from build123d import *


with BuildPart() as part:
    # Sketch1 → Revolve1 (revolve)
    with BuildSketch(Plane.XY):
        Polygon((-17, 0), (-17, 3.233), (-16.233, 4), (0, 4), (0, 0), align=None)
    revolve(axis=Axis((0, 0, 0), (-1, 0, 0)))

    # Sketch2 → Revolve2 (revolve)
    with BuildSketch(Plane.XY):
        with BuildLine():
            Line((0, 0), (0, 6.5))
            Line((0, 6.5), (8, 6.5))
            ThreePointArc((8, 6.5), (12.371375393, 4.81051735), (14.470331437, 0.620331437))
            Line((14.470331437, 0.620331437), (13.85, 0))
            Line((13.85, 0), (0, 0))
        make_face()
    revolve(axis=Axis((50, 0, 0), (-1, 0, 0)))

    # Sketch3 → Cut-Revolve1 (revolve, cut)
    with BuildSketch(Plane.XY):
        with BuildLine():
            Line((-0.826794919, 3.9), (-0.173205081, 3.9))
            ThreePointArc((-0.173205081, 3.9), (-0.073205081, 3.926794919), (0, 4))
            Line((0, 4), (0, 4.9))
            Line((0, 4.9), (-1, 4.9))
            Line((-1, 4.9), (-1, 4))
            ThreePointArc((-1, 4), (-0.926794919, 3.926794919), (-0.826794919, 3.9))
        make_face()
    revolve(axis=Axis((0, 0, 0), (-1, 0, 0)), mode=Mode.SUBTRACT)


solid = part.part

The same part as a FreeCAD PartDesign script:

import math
import FreeCAD as App
import Part
import Sketcher
Q = App.Units.Quantity


def add_polygon(sketch, points):
    """Adds a closed chain of lines whose ends are joined by coincident constraints."""
    first, n = sketch.GeometryCount, len(points)
    for a, b in zip(points, points[1:] + points[:1]):
        sketch.addGeometry(Part.LineSegment(App.Vector(*a, 0), App.Vector(*b, 0)), False)
    for i in range(n):
        sketch.addConstraint(Sketcher.Constraint("Coincident", first + i, 2, first + (i + 1) % n, 1))

doc = App.newDocument("Part")
body = doc.addObject("PartDesign::Body", "Body")

sketch1 = body.newObject("Sketcher::SketchObject", "Sketch")
sketch1.AttachmentSupport = (doc.getObject("XY_Plane"), [""])
sketch1.MapMode = "FlatFace"
add_polygon(sketch1, [(-17, 3.2), (-17, 0), (0, 0), (0, 4), (-16.2, 4)])
sketch1.addConstraint([
    Sketcher.Constraint("Vertical", 0),
    Sketcher.Constraint("Horizontal", 1),
    Sketcher.Constraint("Vertical", 2),
    Sketcher.Constraint("Horizontal", 3),
    Sketcher.Constraint("Coincident", 1, 2, -1, 1),
    Sketcher.Constraint("DistanceX", 1, 1, 1, 2, Q("17 mm")),
    Sketcher.Constraint("DistanceY", 2, 1, 2, 2, Q("4 mm")),
    Sketcher.Constraint("Angle", 4, Q("-135 deg")),
    Sketcher.Constraint("DistanceX", 3, 2, 3, 1, Q("16.233 mm")),
])
revolution = body.newObject("PartDesign::Revolution", "Revolution")
revolution.Profile = sketch1
revolution.ReferenceAxis = (sketch1, ["H_Axis"])
revolution.Angle = 360

sketch2 = body.newObject("Sketcher::SketchObject", "Sketch001")
sketch2.AttachmentSupport = (doc.getObject("XY_Plane"), [""])
sketch2.MapMode = "FlatFace"
sketch2.addGeometry([
    Part.LineSegment(App.Vector(0, 6.5, 0), App.Vector(0, 0, 0)),
    Part.LineSegment(App.Vector(0, 0, 0), App.Vector(13.8, 0, 0)),
    Part.LineSegment(App.Vector(13.8, 0, 0), App.Vector(14.5, 0.6, 0)),
    Part.ArcOfCircle(Part.Circle(App.Vector(8, 0, 0), App.Vector(0, 0, 1), 6.5), math.radians(5), math.radians(90)),
    Part.LineSegment(App.Vector(8, 6.5, 0), App.Vector(0, 6.5, 0)),
], False)
sketch2.addConstraint([
    Sketcher.Constraint("Coincident", 0, 2, 1, 1),
    Sketcher.Constraint("Coincident", 1, 2, 2, 1),
    Sketcher.Constraint("Coincident", 2, 2, 3, 1),
    Sketcher.Constraint("Tangent", 3, 2, 4, 1),
    Sketcher.Constraint("Coincident", 4, 2, 0, 1),
    Sketcher.Constraint("Vertical", 0),
    Sketcher.Constraint("Horizontal", 1),
    Sketcher.Constraint("Horizontal", 4),
    Sketcher.Constraint("Coincident", 0, 2, -1, 1),
    Sketcher.Constraint("PointOnObject", 3, 3, -1),
    Sketcher.Constraint("Radius", 3, Q("6.5 mm")),
    Sketcher.Constraint("DistanceX", 4, 2, 4, 1, Q("8 mm")),
    Sketcher.Constraint("Angle", 2, Q("45 deg")),
    Sketcher.Constraint("DistanceX", 1, 1, 1, 2, Q("13.85 mm")),
])
revolution2 = body.newObject("PartDesign::Revolution", "Revolution001")
revolution2.Profile = sketch2
revolution2.ReferenceAxis = (sketch2, ["H_Axis"])
revolution2.Angle = 360

sketch3 = body.newObject("Sketcher::SketchObject", "Sketch002")
sketch3.AttachmentSupport = (doc.getObject("XY_Plane"), [""])
sketch3.MapMode = "FlatFace"
sketch3.addGeometry([
    Part.LineSegment(App.Vector(-0.83, 3.9, 0), App.Vector(-0.17, 3.9, 0)),
    Part.ArcOfCircle(Part.Circle(App.Vector(-0.17, 4.1, 0), App.Vector(0, 0, 1), 0.2), math.radians(-90), math.radians(-30)),
    Part.LineSegment(App.Vector(0, 4, 0), App.Vector(0, 4.9, 0)),
    Part.LineSegment(App.Vector(0, 4.9, 0), App.Vector(-1, 4.9, 0)),
    Part.LineSegment(App.Vector(-1, 4.9, 0), App.Vector(-1, 4, 0)),
    Part.ArcOfCircle(Part.Circle(App.Vector(-0.83, 4.1, 0), App.Vector(0, 0, 1), 0.2), math.radians(-150), math.radians(-90)),
], False)
sketch3.addConstraint([
    Sketcher.Constraint("Tangent", 0, 2, 1, 1),
    Sketcher.Constraint("Coincident", 1, 2, 2, 1),
    Sketcher.Constraint("Coincident", 2, 2, 3, 1),
    Sketcher.Constraint("Coincident", 3, 2, 4, 1),
    Sketcher.Constraint("Coincident", 4, 2, 5, 1),
    Sketcher.Constraint("Tangent", 5, 2, 0, 1),
    Sketcher.Constraint("Horizontal", 0),
    Sketcher.Constraint("Vertical", 2),
    Sketcher.Constraint("Horizontal", 3),
    Sketcher.Constraint("Vertical", 4),
    Sketcher.Constraint("Equal", 1, 5),
    Sketcher.Constraint("PointOnObject", 1, 2, -2),
    Sketcher.Constraint("Horizontal", 1, 2, 4, 2),
    Sketcher.Constraint("Radius", 1, Q("0.2 mm")),
    Sketcher.Constraint("DistanceX", 3, 2, 3, 1, Q("1 mm")),
    Sketcher.Constraint("DistanceY", 2, 1, 2, 2, Q("0.9 mm")),
    Sketcher.Constraint("DistanceY", -1, 1, 1, 2, Q("4 mm")),
    Sketcher.Constraint("DistanceY", 0, 2, 2, 2, Q("1 mm")),
])
groove = body.newObject("PartDesign::Groove", "Groove")
groove.Profile = sketch3
groove.ReferenceAxis = (sketch3, ["H_Axis"])
groove.Angle = 360

doc.recompute()
